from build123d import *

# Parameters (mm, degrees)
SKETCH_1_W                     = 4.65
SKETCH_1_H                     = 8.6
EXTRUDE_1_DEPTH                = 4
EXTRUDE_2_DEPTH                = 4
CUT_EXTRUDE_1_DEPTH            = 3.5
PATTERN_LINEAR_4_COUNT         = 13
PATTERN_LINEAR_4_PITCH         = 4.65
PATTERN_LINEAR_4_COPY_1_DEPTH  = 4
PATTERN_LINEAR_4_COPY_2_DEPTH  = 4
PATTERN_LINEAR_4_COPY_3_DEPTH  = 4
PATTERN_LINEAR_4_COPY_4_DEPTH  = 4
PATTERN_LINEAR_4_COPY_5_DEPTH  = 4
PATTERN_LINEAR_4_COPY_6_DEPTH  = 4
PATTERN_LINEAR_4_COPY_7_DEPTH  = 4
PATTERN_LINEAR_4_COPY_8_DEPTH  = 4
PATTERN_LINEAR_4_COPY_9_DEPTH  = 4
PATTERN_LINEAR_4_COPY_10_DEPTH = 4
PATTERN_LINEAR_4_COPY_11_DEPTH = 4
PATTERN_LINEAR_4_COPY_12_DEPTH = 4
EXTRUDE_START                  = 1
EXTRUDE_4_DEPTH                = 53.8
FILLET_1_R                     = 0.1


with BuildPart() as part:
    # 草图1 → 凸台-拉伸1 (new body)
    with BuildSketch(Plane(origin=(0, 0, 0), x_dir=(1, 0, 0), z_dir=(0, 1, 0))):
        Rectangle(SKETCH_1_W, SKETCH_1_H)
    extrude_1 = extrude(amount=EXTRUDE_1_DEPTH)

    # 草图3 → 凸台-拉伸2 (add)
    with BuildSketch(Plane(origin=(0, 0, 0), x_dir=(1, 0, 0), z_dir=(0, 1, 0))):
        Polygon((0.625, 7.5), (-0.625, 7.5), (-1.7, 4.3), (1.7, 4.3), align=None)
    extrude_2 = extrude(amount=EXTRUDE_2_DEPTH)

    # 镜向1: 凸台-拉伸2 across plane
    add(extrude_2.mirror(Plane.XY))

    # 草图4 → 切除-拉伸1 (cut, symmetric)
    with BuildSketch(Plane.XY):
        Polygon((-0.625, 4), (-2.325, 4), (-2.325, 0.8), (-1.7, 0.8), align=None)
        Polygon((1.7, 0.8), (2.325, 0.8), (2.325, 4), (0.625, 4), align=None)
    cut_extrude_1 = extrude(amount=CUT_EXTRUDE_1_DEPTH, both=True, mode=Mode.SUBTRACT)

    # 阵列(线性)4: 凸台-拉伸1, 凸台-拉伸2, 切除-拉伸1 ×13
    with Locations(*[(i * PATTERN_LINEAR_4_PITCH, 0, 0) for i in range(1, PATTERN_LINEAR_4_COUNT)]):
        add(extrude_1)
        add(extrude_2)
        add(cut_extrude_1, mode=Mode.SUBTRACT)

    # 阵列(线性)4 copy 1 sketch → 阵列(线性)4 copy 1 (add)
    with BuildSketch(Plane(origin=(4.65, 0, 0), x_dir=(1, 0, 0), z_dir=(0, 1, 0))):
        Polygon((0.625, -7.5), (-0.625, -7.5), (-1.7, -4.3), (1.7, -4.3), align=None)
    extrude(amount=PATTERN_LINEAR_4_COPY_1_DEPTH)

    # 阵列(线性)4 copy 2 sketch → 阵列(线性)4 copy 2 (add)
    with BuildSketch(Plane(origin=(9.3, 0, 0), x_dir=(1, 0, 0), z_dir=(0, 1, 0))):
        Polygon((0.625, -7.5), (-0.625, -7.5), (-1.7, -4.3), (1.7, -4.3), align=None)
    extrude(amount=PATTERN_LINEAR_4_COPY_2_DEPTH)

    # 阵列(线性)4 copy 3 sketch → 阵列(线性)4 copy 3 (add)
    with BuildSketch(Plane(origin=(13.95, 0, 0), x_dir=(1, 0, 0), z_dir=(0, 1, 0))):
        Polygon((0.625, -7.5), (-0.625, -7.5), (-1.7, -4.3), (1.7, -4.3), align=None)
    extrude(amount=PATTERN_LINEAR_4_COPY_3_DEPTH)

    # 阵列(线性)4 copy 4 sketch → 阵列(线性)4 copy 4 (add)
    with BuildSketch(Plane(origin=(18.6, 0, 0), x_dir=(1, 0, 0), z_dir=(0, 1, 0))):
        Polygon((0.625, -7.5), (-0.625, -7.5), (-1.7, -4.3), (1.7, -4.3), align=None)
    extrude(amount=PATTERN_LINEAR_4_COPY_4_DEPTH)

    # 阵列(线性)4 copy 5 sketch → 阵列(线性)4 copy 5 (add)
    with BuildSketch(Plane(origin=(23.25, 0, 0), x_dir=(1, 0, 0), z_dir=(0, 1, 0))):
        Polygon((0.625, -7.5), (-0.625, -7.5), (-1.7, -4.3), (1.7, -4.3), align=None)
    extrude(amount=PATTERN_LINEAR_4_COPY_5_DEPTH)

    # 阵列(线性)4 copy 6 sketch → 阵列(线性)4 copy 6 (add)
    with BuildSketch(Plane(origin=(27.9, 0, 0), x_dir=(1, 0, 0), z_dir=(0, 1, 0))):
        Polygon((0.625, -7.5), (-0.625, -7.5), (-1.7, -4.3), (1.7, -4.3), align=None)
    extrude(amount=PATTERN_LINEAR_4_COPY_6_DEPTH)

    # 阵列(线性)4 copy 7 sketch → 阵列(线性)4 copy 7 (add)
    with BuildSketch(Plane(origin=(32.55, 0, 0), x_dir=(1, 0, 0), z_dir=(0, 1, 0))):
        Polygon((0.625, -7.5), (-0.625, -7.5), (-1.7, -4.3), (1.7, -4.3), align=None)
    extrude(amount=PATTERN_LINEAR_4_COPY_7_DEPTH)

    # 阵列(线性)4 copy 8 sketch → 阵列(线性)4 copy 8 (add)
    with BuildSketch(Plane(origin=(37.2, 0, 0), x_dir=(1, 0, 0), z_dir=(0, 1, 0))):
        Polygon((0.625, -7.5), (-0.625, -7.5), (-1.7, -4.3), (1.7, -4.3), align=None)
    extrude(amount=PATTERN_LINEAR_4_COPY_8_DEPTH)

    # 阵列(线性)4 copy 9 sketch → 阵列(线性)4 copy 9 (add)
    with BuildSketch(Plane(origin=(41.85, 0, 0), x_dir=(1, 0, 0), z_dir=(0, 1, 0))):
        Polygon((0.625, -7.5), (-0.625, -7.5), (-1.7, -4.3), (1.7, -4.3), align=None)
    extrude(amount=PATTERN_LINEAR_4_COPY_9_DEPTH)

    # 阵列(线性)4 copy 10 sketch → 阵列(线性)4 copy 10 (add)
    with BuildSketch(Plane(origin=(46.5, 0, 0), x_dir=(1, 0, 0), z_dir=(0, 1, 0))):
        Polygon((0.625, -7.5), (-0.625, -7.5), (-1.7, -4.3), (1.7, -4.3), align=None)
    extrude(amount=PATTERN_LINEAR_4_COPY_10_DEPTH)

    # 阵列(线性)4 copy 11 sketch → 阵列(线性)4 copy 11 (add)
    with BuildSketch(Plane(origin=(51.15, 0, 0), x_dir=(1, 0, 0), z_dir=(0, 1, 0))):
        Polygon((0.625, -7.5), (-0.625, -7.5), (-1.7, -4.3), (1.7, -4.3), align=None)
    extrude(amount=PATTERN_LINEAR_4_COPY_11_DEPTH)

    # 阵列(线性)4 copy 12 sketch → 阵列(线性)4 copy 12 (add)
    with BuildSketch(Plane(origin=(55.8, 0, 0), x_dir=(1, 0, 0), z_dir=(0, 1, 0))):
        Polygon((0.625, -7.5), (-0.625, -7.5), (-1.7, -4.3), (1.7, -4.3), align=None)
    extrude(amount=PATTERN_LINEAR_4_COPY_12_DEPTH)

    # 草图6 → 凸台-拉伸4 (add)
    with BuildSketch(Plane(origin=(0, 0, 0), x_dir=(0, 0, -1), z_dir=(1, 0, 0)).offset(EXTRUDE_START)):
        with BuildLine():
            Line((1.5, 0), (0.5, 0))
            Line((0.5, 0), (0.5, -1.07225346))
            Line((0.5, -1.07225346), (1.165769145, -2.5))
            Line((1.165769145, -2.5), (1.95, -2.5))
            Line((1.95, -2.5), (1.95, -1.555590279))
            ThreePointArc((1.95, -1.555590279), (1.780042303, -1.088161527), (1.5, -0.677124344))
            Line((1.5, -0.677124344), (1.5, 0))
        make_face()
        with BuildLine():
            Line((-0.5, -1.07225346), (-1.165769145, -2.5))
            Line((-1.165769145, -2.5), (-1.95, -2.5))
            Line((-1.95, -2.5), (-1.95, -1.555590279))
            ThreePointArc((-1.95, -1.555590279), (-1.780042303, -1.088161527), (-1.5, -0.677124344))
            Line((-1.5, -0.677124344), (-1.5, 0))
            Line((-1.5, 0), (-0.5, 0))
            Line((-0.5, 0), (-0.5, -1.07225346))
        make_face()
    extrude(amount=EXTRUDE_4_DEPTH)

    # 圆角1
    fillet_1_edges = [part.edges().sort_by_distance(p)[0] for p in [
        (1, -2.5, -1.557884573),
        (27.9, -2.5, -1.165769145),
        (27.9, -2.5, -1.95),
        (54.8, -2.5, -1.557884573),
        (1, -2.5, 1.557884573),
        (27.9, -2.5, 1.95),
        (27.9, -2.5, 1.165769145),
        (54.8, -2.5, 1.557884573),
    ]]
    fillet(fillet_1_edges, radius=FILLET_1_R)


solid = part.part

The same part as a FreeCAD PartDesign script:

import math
import FreeCAD as App
import Part
import Sketcher

V = App.Vector
Q = App.Units.Quantity


def edges_at(feature, points):
    """Names of the edges that pass closest to the given points."""
    edges = feature.Shape.Edges
    near = lambda p: min(range(len(edges)), key=lambda i: edges[i].distToShape(Part.Vertex(*p))[0])
    return sorted({f"Edge{near(p) + 1}" for p in points})


def add_polygon(sketch, points):
    """Adds a closed chain of lines whose ends are joined by coincident constraints."""
    first, n = sketch.GeometryCount, len(points)
    for a, b in zip(points, points[1:] + points[:1]):
        sketch.addGeometry(Part.LineSegment(App.Vector(*a, 0), App.Vector(*b, 0)), False)
    for i in range(n):
        sketch.addConstraint(Sketcher.Constraint("Coincident", first + i, 2, first + (i + 1) % n, 1))

doc = App.newDocument("Part")
body = doc.addObject("PartDesign::Body", "Body")

# Sketch on XZ plane
sketch1 = body.newObject("Sketcher::SketchObject", "Sketch")
sketch1.AttachmentSupport = (doc.getObject("XZ_Plane"), [""])
sketch1.MapMode = "FlatFace"
add_polygon(sketch1, [(-2.3, -4.3), (-2.3, 4.3), (2.3, 4.3), (2.3, -4.3)])  # lines 0-3
sketch1.addConstraint(Sketcher.Constraint("Vertical", 0))
sketch1.addConstraint(Sketcher.Constraint("Horizontal", 1))
sketch1.addConstraint(Sketcher.Constraint("Vertical", 2))
sketch1.addConstraint(Sketcher.Constraint("Horizontal", 3))
sketch1.addConstraint(Sketcher.Constraint("Symmetric", 0, 2, 2, 2, -1, 1))
sketch1.addConstraint(Sketcher.Constraint("DistanceY", 0, 1, 0, 2, 8.6))
sketch1.addConstraint(Sketcher.Constraint("DistanceX", 1, 1, 1, 2, 4.65))
pad1 = body.newObject("PartDesign::Pad", "Pad")
pad1.Profile = sketch1
pad1.Length = 4
pad1.Reversed = True

# Sketch on XZ plane
sketch2 = body.newObject("Sketcher::SketchObject", "Sketch001")
sketch2.AttachmentSupport = (doc.getObject("XZ_Plane"), [""])
sketch2.MapMode = "FlatFace"
add_polygon(sketch2, [(0.6, -7.5), (-0.6, -7.5), (-1.7, -4.3), (1.7, -4.3)])  # lines 0-3
sketch2.addConstraint(Sketcher.Constraint("Horizontal", 0))
sketch2.addConstraint(Sketcher.Constraint("Horizontal", 2))
sketch2.addConstraint(Sketcher.Constraint("Equal", 1, 3))
sketch2.addConstraint(Sketcher.Constraint("DistanceX", 2, 1, 2, 2, 3.4))
sketch2.addConstraint(Sketcher.Constraint("DistanceX", 0, 2, 0, 1, 1.25))
sketch2.addConstraint(Sketcher.Constraint("DistanceY", 0, 2, -1, 1, 7.5))
sketch2.addConstraint(Sketcher.Constraint("DistanceX", 1, 2, -1, 1, 1.7))
sketch2.addConstraint(Sketcher.Constraint("DistanceY", 1, 2, -1, 1, 4.3))
pad2 = body.newObject("PartDesign::Pad", "Pad001")
pad2.Profile = sketch2
pad2.Length = 4
pad2.Reversed = True
doc.recompute()

mirrored = body.newObject("PartDesign::Mirrored", "Mirrored")
mirrored.Originals = [pad2]
mirrored.MirrorPlane = (doc.getObject("XY_Plane"), [""])
body.Tip = mirrored

# Sketch on XY plane
sketch3 = body.newObject("Sketcher::SketchObject", "Sketch002")
sketch3.AttachmentSupport = (doc.getObject("XY_Plane"), [""])
sketch3.MapMode = "FlatFace"
add_polygon(sketch3, [(-0.6, 4), (-2.3, 4), (-2.3, 0.8), (-1.7, 0.8)])  # lines 0-3
add_polygon(sketch3, [(1.7, 0.8), (2.3, 0.8), (2.3, 4), (0.6, 4)])  # lines 4-7
sketch3.addConstraint(Sketcher.Constraint("Horizontal", 0))
sketch3.addConstraint(Sketcher.Constraint("Vertical", 1))
sketch3.addConstraint(Sketcher.Constraint("Horizontal", 2))
sketch3.addConstraint(Sketcher.Constraint("Horizontal", 4))
sketch3.addConstraint(Sketcher.Constraint("Vertical", 5))
sketch3.addConstraint(Sketcher.Constraint("Horizontal", 6))
sketch3.addConstraint(Sketcher.Constraint("Symmetric", 1, 2, 4, 2, -2))
sketch3.addConstraint(Sketcher.Constraint("Symmetric", 3, 2, 6, 2, -2))
sketch3.addConstraint(Sketcher.Constraint("Equal", 2, 4))
sketch3.addConstraint(Sketcher.Constraint("DistanceX", 0, 2, 0, 1, 1.7))
sketch3.addConstraint(Sketcher.Constraint("DistanceY", 1, 2, 1, 1, 3.2))
sketch3.addConstraint(Sketcher.Constraint("DistanceY", -1, 1, 0, 2, 4.0))
sketch3.addConstraint(Sketcher.Constraint("DistanceX", 2, 2, -1, 1, 1.7))
sketch3.addConstraint(Sketcher.Constraint("DistanceX", 2, 1, 2, 2, 0.625))
pocket1 = body.newObject("PartDesign::Pocket", "Pocket")
pocket1.Profile = sketch3
pocket1.Length = 7
pocket1.Midplane = True
doc.recompute()

linearpattern = body.newObject("PartDesign::LinearPattern", "LinearPattern")
linearpattern.Originals = [pad1, pad2, pocket1]
linearpattern.Direction = (doc.getObject("X_Axis"), [""])
linearpattern.Mode = "offset"
linearpattern.Offset = 4.65
linearpattern.Occurrences = 13
body.Tip = linearpattern

# Sketch on XZ plane
sketch4 = body.newObject("Sketcher::SketchObject", "Sketch003")
sketch4.AttachmentSupport = (doc.getObject("XZ_Plane"), [""])
sketch4.MapMode = "FlatFace"
add_polygon(sketch4, [(4, 7.5), (5.3, 7.5), (6.3, 4.3), (3, 4.3)])  # lines 0-3
sketch4.addConstraint(Sketcher.Constraint("Horizontal", 0))
sketch4.addConstraint(Sketcher.Constraint("Horizontal", 2))
sketch4.addConstraint(Sketcher.Constraint("Equal", 1, 3))
sketch4.addConstraint(Sketcher.Constraint("DistanceX", 2, 2, 2, 1, 3.4))
sketch4.addConstraint(Sketcher.Constraint("DistanceX", 0, 1, 0, 2, 1.25))
sketch4.addConstraint(Sketcher.Constraint("DistanceY", -1, 1, 0, 2, 7.5))
sketch4.addConstraint(Sketcher.Constraint("DistanceY", -1, 1, 1, 2, 4.3))
sketch4.addConstraint(Sketcher.Constraint("DistanceX", -1, 1, 1, 2, 6.35))
pad3 = body.newObject("PartDesign::Pad", "Pad002")
pad3.Profile = sketch4
pad3.Length = 4
pad3.Reversed = True

# Sketch on XZ plane
sketch5 = body.newObject("Sketcher::SketchObject", "Sketch004")
sketch5.AttachmentSupport = (doc.getObject("XZ_Plane"), [""])
sketch5.MapMode = "FlatFace"
add_polygon(sketch5, [(8.7, 7.5), (9.9, 7.5), (11, 4.3), (7.6, 4.3)])  # lines 0-3
sketch5.addConstraint(Sketcher.Constraint("Horizontal", 0))
sketch5.addConstraint(Sketcher.Constraint("Horizontal", 2))
sketch5.addConstraint(Sketcher.Constraint("Equal", 1, 3))
sketch5.addConstraint(Sketcher.Constraint("DistanceX", 2, 2, 2, 1, 3.4))
sketch5.addConstraint(Sketcher.Constraint("DistanceX", -1, 1, 1, 2, 11.0))
sketch5.addConstraint(Sketcher.Constraint("DistanceX", 0, 1, 0, 2, 1.25))
sketch5.addConstraint(Sketcher.Constraint("DistanceY", -1, 1, 0, 2, 7.5))
sketch5.addConstraint(Sketcher.Constraint("DistanceY", -1, 1, 1, 2, 4.3))
pad4 = body.newObject("PartDesign::Pad", "Pad003")
pad4.Profile = sketch5
pad4.Length = 4
pad4.Reversed = True

# Sketch on XZ plane
sketch6 = body.newObject("Sketcher::SketchObject", "Sketch005")
sketch6.AttachmentSupport = (doc.getObject("XZ_Plane"), [""])
sketch6.MapMode = "FlatFace"
add_polygon(sketch6, [(13.3, 7.5), (14.6, 7.5), (15.7, 4.3), (12.2, 4.3)])  # lines 0-3
sketch6.addConstraint(Sketcher.Constraint("Horizontal", 0))
sketch6.addConstraint(Sketcher.Constraint("Horizontal", 2))
sketch6.addConstraint(Sketcher.Constraint("Equal", 1, 3))
sketch6.addConstraint(Sketcher.Constraint("DistanceX", 2, 2, 2, 1, 3.4))
sketch6.addConstraint(Sketcher.Constraint("DistanceX", 0, 1, 0, 2, 1.25))
sketch6.addConstraint(Sketcher.Constraint("DistanceY", -1, 1, 0, 2, 7.5))
sketch6.addConstraint(Sketcher.Constraint("DistanceY", -1, 1, 1, 2, 4.3))
sketch6.addConstraint(Sketcher.Constraint("DistanceX", -1, 1, 1, 2, 15.65))
pad5 = body.newObject("PartDesign::Pad", "Pad004")
pad5.Profile = sketch6
pad5.Length = 4
pad5.Reversed = True

# Sketch on XZ plane
sketch7 = body.newObject("Sketcher::SketchObject", "Sketch006")
sketch7.AttachmentSupport = (doc.getObject("XZ_Plane"), [""])
sketch7.MapMode = "FlatFace"
add_polygon(sketch7, [(18, 7.5), (19.2, 7.5), (20.3, 4.3), (16.9, 4.3)])  # lines 0-3
sketch7.addConstraint(Sketcher.Constraint("Horizontal", 0))
sketch7.addConstraint(Sketcher.Constraint("Horizontal", 2))
sketch7.addConstraint(Sketcher.Constraint("Equal", 1, 3))
sketch7.addConstraint(Sketcher.Constraint("DistanceX", 2, 2, 2, 1, 3.4))
sketch7.addConstraint(Sketcher.Constraint("DistanceX", 0, 1, 0, 2, 1.25))
sketch7.addConstraint(Sketcher.Constraint("DistanceY", -1, 1, 0, 2, 7.5))
sketch7.addConstraint(Sketcher.Constraint("DistanceX", -1, 1, 1, 2, 20.3))
sketch7.addConstraint(Sketcher.Constraint("DistanceY", -1, 1, 1, 2, 4.3))
pad6 = body.newObject("PartDesign::Pad", "Pad005")
pad6.Profile = sketch7
pad6.Length = 4
pad6.Reversed = True

# Sketch on XZ plane
sketch8 = body.newObject("Sketcher::SketchObject", "Sketch007")
sketch8.AttachmentSupport = (doc.getObject("XZ_Plane"), [""])
sketch8.MapMode = "FlatFace"
add_polygon(sketch8, [(22.6, 7.5), (23.9, 7.5), (24.9, 4.3), (21.6, 4.3)])  # lines 0-3
sketch8.addConstraint(Sketcher.Constraint("Horizontal", 0))
sketch8.addConstraint(Sketcher.Constraint("Horizontal", 2))
sketch8.addConstraint(Sketcher.Constraint("Equal", 1, 3))
sketch8.addConstraint(Sketcher.Constraint("DistanceX", 2, 2, 2, 1, 3.4))
sketch8.addConstraint(Sketcher.Constraint("DistanceX", 0, 1, 0, 2, 1.25))
sketch8.addConstraint(Sketcher.Constraint("DistanceY", -1, 1, 0, 2, 7.5))
sketch8.addConstraint(Sketcher.Constraint("DistanceY", -1, 1, 1, 2, 4.3))
sketch8.addConstraint(Sketcher.Constraint("DistanceX", -1, 1, 1, 2, 24.95))
pad7 = body.newObject("PartDesign::Pad", "Pad006")
pad7.Profile = sketch8
pad7.Length = 4
pad7.Reversed = True

# Sketch on XZ plane
sketch9 = body.newObject("Sketcher::SketchObject", "Sketch008")
sketch9.AttachmentSupport = (doc.getObject("XZ_Plane"), [""])
sketch9.MapMode = "FlatFace"
add_polygon(sketch9, [(27.3, 7.5), (28.5, 7.5), (29.6, 4.3), (26.2, 4.3)])  # lines 0-3
sketch9.addConstraint(Sketcher.Constraint("Horizontal", 0))
sketch9.addConstraint(Sketcher.Constraint("Horizontal", 2))
sketch9.addConstraint(Sketcher.Constraint("Equal", 1, 3))
sketch9.addConstraint(Sketcher.Constraint("DistanceX", 2, 2, 2, 1, 3.4))
sketch9.addConstraint(Sketcher.Constraint("DistanceX", 0, 1, 0, 2, 1.25))
sketch9.addConstraint(Sketcher.Constraint("DistanceY", -1, 1, 0, 2, 7.5))
sketch9.addConstraint(Sketcher.Constraint("DistanceX", -1, 1, 1, 2, 29.6))
sketch9.addConstraint(Sketcher.Constraint("DistanceY", -1, 1, 1, 2, 4.3))
pad8 = body.newObject("PartDesign::Pad", "Pad007")
pad8.Profile = sketch9
pad8.Length = 4
pad8.Reversed = True

# Sketch on XZ plane
sketch10 = body.newObject("Sketcher::SketchObject", "Sketch009")
sketch10.AttachmentSupport = (doc.getObject("XZ_Plane"), [""])
sketch10.MapMode = "FlatFace"
add_polygon(sketch10, [(31.9, 7.5), (33.2, 7.5), (34.2, 4.3), (30.9, 4.3)])  # lines 0-3
sketch10.addConstraint(Sketcher.Constraint("Horizontal", 0))
sketch10.addConstraint(Sketcher.Constraint("Horizontal", 2))
sketch10.addConstraint(Sketcher.Constraint("Equal", 1, 3))
sketch10.addConstraint(Sketcher.Constraint("DistanceX", 2, 2, 2, 1, 3.4))
sketch10.addConstraint(Sketcher.Constraint("DistanceX", 0, 1, 0, 2, 1.25))
sketch10.addConstraint(Sketcher.Constraint("DistanceY", -1, 1, 0, 2, 7.5))
sketch10.addConstraint(Sketcher.Constraint("DistanceY", -1, 1, 1, 2, 4.3))
sketch10.addConstraint(Sketcher.Constraint("DistanceX", -1, 1, 1, 2, 34.25))
pad9 = body.newObject("PartDesign::Pad", "Pad008")
pad9.Profile = sketch10
pad9.Length = 4
pad9.Reversed = True

# Sketch on XZ plane
sketch11 = body.newObject("Sketcher::SketchObject", "Sketch010")
sketch11.AttachmentSupport = (doc.getObject("XZ_Plane"), [""])
sketch11.MapMode = "FlatFace"
add_polygon(sketch11, [(36.6, 7.5), (37.8, 7.5), (38.9, 4.3), (35.5, 4.3)])  # lines 0-3
sketch11.addConstraint(Sketcher.Constraint("Horizontal", 0))
sketch11.addConstraint(Sketcher.Constraint("Horizontal", 2))
sketch11.addConstraint(Sketcher.Constraint("Equal", 1, 3))
sketch11.addConstraint(Sketcher.Constraint("DistanceX", 2, 2, 2, 1, 3.4))
sketch11.addConstraint(Sketcher.Constraint("DistanceX", 0, 1, 0, 2, 1.25))
sketch11.addConstraint(Sketcher.Constraint("DistanceY", -1, 1, 0, 2, 7.5))
sketch11.addConstraint(Sketcher.Constraint("DistanceX", -1, 1, 1, 2, 38.9))
sketch11.addConstraint(Sketcher.Constraint("DistanceY", -1, 1, 1, 2, 4.3))
pad10 = body.newObject("PartDesign::Pad", "Pad009")
pad10.Profile = sketch11
pad10.Length = 4
pad10.Reversed = True

# Sketch on XZ plane
sketch12 = body.newObject("Sketcher::SketchObject", "Sketch011")
sketch12.AttachmentSupport = (doc.getObject("XZ_Plane"), [""])
sketch12.MapMode = "FlatFace"
add_polygon(sketch12, [(41.2, 7.5), (42.5, 7.5), (43.5, 4.3), (40.1, 4.3)])  # lines 0-3
sketch12.addConstraint(Sketcher.Constraint("Horizontal", 0))
sketch12.addConstraint(Sketcher.Constraint("Horizontal", 2))
sketch12.addConstraint(Sketcher.Constraint("Equal", 1, 3))
sketch12.addConstraint(Sketcher.Constraint("DistanceX", 2, 2, 2, 1, 3.4))
sketch12.addConstraint(Sketcher.Constraint("DistanceX", 0, 1, 0, 2, 1.25))
sketch12.addConstraint(Sketcher.Constraint("DistanceY", -1, 1, 0, 2, 7.5))
sketch12.addConstraint(Sketcher.Constraint("DistanceY", -1, 1, 1, 2, 4.3))
sketch12.addConstraint(Sketcher.Constraint("DistanceX", -1, 1, 1, 2, 43.55))
pad11 = body.newObject("PartDesign::Pad", "Pad010")
pad11.Profile = sketch12
pad11.Length = 4
pad11.Reversed = True

# Sketch on XZ plane
sketch13 = body.newObject("Sketcher::SketchObject", "Sketch012")
sketch13.AttachmentSupport = (doc.getObject("XZ_Plane"), [""])
sketch13.MapMode = "FlatFace"
add_polygon(sketch13, [(45.9, 7.5), (47.1, 7.5), (48.2, 4.3), (44.8, 4.3)])  # lines 0-3
sketch13.addConstraint(Sketcher.Constraint("Horizontal", 0))
sketch13.addConstraint(Sketcher.Constraint("Horizontal", 2))
sketch13.addConstraint(Sketcher.Constraint("Equal", 1, 3))
sketch13.addConstraint(Sketcher.Constraint("DistanceX", 2, 2, 2, 1, 3.4))
sketch13.addConstraint(Sketcher.Constraint("DistanceX", 0, 1, 0, 2, 1.25))
sketch13.addConstraint(Sketcher.Constraint("DistanceY", -1, 1, 0, 2, 7.5))
sketch13.addConstraint(Sketcher.Constraint("DistanceX", -1, 1, 1, 2, 48.2))
sketch13.addConstraint(Sketcher.Constraint("DistanceY", -1, 1, 1, 2, 4.3))
pad12 = body.newObject("PartDesign::Pad", "Pad011")
pad12.Profile = sketch13
pad12.Length = 4
pad12.Reversed = True

# Sketch on XZ plane
sketch14 = body.newObject("Sketcher::SketchObject", "Sketch013")
sketch14.AttachmentSupport = (doc.getObject("XZ_Plane"), [""])
sketch14.MapMode = "FlatFace"
add_polygon(sketch14, [(50.5, 7.5), (51.8, 7.5), (52.9, 4.3), (49.5, 4.3)])  # lines 0-3
sketch14.addConstraint(Sketcher.Constraint("Horizontal", 0))
sketch14.addConstraint(Sketcher.Constraint("Horizontal", 2))
sketch14.addConstraint(Sketcher.Constraint("Equal", 1, 3))
sketch14.addConstraint(Sketcher.Constraint("DistanceX", 2, 2, 2, 1, 3.4))
sketch14.addConstraint(Sketcher.Constraint("DistanceX", 0, 1, 0, 2, 1.25))
sketch14.addConstraint(Sketcher.Constraint("DistanceY", -1, 1, 0, 2, 7.5))
sketch14.addConstraint(Sketcher.Constraint("DistanceY", -1, 1, 1, 2, 4.3))
sketch14.addConstraint(Sketcher.Constraint("DistanceX", -1, 1, 1, 2, 52.85))
pad13 = body.newObject("PartDesign::Pad", "Pad012")
pad13.Profile = sketch14
pad13.Length = 4
pad13.Reversed = True

# Sketch on XZ plane
sketch15 = body.newObject("Sketcher::SketchObject", "Sketch014")
sketch15.AttachmentSupport = (doc.getObject("XZ_Plane"), [""])
sketch15.MapMode = "FlatFace"
add_polygon(sketch15, [(55.2, 7.5), (56.4, 7.5), (57.5, 4.3), (54.1, 4.3)])  # lines 0-3
sketch15.addConstraint(Sketcher.Constraint("Horizontal", 0))
sketch15.addConstraint(Sketcher.Constraint("Horizontal", 2))
sketch15.addConstraint(Sketcher.Constraint("Equal", 1, 3))
sketch15.addConstraint(Sketcher.Constraint("DistanceX", 2, 2, 2, 1, 3.4))
sketch15.addConstraint(Sketcher.Constraint("DistanceX", 0, 1, 0, 2, 1.25))
sketch15.addConstraint(Sketcher.Constraint("DistanceY", -1, 1, 0, 2, 7.5))
sketch15.addConstraint(Sketcher.Constraint("DistanceX", -1, 1, 1, 2, 57.5))
sketch15.addConstraint(Sketcher.Constraint("DistanceY", -1, 1, 1, 2, 4.3))
pad14 = body.newObject("PartDesign::Pad", "Pad013")
pad14.Profile = sketch15
pad14.Length = 4
pad14.Reversed = True

# Sketch on YZ plane
sketch16 = body.newObject("Sketcher::SketchObject", "Sketch015")
sketch16.AttachmentSupport = (doc.getObject("YZ_Plane"), [""])
sketch16.MapMode = "FlatFace"
sketch16.AttachmentOffset = App.Placement(V(0, 0, 1), App.Rotation())
sketch16.addGeometry(Part.LineSegment(V(0, -1.5, 0), V(0, -0.5, 0)), False)
sketch16.addGeometry(Part.LineSegment(V(0, -0.5, 0), V(-1.1, -0.5, 0)), False)
sketch16.addGeometry(Part.LineSegment(V(-1.1, -0.5, 0), V(-2.5, -1.2, 0)), False)
sketch16.addGeometry(Part.LineSegment(V(-2.5, -1.2, 0), V(-2.5, -1.9, 0)), False)
sketch16.addGeometry(Part.LineSegment(V(-2.5, -1.9, 0), V(-1.6, -1.9, 0)), False)
sketch16.addGeometry(Part.ArcOfCircle(Part.Circle(V(-2, 0, 0), V(0, 0, 1), 2), math.radians(-77), math.radians(-49)), False)
sketch16.addGeometry(Part.LineSegment(V(-0.7, -1.5, 0), V(0, -1.5, 0)), False)
sketch16.addGeometry(Part.LineSegment(V(-2.5, 1.2, 0), V(-1.1, 0.5, 0)), False)
sketch16.addGeometry(Part.LineSegment(V(-1.1, 0.5, 0), V(0, 0.5, 0)), False)
sketch16.addGeometry(Part.LineSegment(V(0, 0.5, 0), V(0, 1.5, 0)), False)
sketch16.addGeometry(Part.LineSegment(V(0, 1.5, 0), V(-0.7, 1.5, 0)), False)
sketch16.addGeometry(Part.ArcOfCircle(Part.Circle(V(-2, 0, 0), V(0, 0, 1), 2), math.radians(49), math.radians(77)), False)
sketch16.addGeometry(Part.LineSegment(V(-1.6, 1.9, 0), V(-2.5, 1.9, 0)), False)
sketch16.addGeometry(Part.LineSegment(V(-2.5, 1.9, 0), V(-2.5, 1.2, 0)), False)
sketch16.addConstraint(Sketcher.Constraint("Coincident", 0, 2, 1, 1))
sketch16.addConstraint(Sketcher.Constraint("Coincident", 1, 2, 2, 1))
sketch16.addConstraint(Sketcher.Constraint("Coincident", 2, 2, 3, 1))
sketch16.addConstraint(Sketcher.Constraint("Coincident", 3, 2, 4, 1))
sketch16.addConstraint(Sketcher.Constraint("Coincident", 4, 2, 5, 1))
sketch16.addConstraint(Sketcher.Constraint("Coincident", 5, 2, 6, 1))
sketch16.addConstraint(Sketcher.Constraint("Coincident", 6, 2, 0, 1))
sketch16.addConstraint(Sketcher.Constraint("Coincident", 7, 2, 8, 1))
sketch16.addConstraint(Sketcher.Constraint("Coincident", 8, 2, 9, 1))
sketch16.addConstraint(Sketcher.Constraint("Coincident", 9, 2, 10, 1))
sketch16.addConstraint(Sketcher.Constraint("Coincident", 10, 2, 11, 1))
sketch16.addConstraint(Sketcher.Constraint("Coincident", 11, 2, 12, 1))
sketch16.addConstraint(Sketcher.Constraint("Coincident", 12, 2, 13, 1))
sketch16.addConstraint(Sketcher.Constraint("Coincident", 13, 2, 7, 1))
sketch16.addConstraint(Sketcher.Constraint("Vertical", 0))
sketch16.addConstraint(Sketcher.Constraint("Horizontal", 1))
sketch16.addConstraint(Sketcher.Constraint("Vertical", 3))
sketch16.addConstraint(Sketcher.Constraint("Horizontal", 4))
sketch16.addConstraint(Sketcher.Constraint("Horizontal", 6))
sketch16.addConstraint(Sketcher.Constraint("Horizontal", 8))
sketch16.addConstraint(Sketcher.Constraint("Vertical", 9))
sketch16.addConstraint(Sketcher.Constraint("Horizontal", 10))
sketch16.addConstraint(Sketcher.Constraint("Horizontal", 12))
sketch16.addConstraint(Sketcher.Constraint("Vertical", 13))
sketch16.addConstraint(Sketcher.Constraint("Coincident", 11, 3, 5, 3))
sketch16.addConstraint(Sketcher.Constraint("Equal", 5, 11))
sketch16.addConstraint(Sketcher.Constraint("Symmetric", 0, 2, 8, 2, -1, 1))
sketch16.addConstraint(Sketcher.Constraint("Symmetric", 6, 2, 9, 2, -1))
sketch16.addConstraint(Sketcher.Constraint("Symmetric", 4, 2, 11, 2, -1))
sketch16.addConstraint(Sketcher.Constraint("Symmetric", 2, 2, 13, 2, -1))
sketch16.addConstraint(Sketcher.Constraint("Vertical", 1, 2, 7, 2))
sketch16.addConstraint(Sketcher.Constraint("Radius", 5, 2.0))
sketch16.addConstraint(Sketcher.Constraint("DistanceY", 0, 1, 0, 2, 1.0))
sketch16.addConstraint(Sketcher.Constraint("Angle", 2, Q("-155 deg")))
sketch16.addConstraint(Sketcher.Constraint("DistanceX", 5, 3, -1, 1, 2.0))
sketch16.addConstraint(Sketcher.Constraint("DistanceY", 1, 2, 7, 2, 1.0))
sketch16.addConstraint(Sketcher.Constraint("DistanceX", 2, 2, -1, 1, 2.5))
sketch16.addConstraint(Sketcher.Constraint("DistanceY", 3, 2, -1, 1, 1.95))
sketch16.addConstraint(Sketcher.Constraint("DistanceY", 3, 2, 3, 1, 0.784231))
pad15 = body.newObject("PartDesign::Pad", "Pad014")
pad15.Profile = sketch16
pad15.Length = 53.8
doc.recompute()

fillet = body.newObject("PartDesign::Fillet", "Fillet")
fillet.Base = (pad15, edges_at(pad15, [
    (1, -2.5, -1.558),
    (27.9, -2.5, -1.166),
    (27.9, -2.5, -1.95),
    (54.8, -2.5, -1.558),
    (1, -2.5, 1.558),
    (27.9, -2.5, 1.95),
    (27.9, -2.5, 1.166),
    (54.8, -2.5, 1.558),
]))
fillet.Radius = 0.1

doc.recompute()
